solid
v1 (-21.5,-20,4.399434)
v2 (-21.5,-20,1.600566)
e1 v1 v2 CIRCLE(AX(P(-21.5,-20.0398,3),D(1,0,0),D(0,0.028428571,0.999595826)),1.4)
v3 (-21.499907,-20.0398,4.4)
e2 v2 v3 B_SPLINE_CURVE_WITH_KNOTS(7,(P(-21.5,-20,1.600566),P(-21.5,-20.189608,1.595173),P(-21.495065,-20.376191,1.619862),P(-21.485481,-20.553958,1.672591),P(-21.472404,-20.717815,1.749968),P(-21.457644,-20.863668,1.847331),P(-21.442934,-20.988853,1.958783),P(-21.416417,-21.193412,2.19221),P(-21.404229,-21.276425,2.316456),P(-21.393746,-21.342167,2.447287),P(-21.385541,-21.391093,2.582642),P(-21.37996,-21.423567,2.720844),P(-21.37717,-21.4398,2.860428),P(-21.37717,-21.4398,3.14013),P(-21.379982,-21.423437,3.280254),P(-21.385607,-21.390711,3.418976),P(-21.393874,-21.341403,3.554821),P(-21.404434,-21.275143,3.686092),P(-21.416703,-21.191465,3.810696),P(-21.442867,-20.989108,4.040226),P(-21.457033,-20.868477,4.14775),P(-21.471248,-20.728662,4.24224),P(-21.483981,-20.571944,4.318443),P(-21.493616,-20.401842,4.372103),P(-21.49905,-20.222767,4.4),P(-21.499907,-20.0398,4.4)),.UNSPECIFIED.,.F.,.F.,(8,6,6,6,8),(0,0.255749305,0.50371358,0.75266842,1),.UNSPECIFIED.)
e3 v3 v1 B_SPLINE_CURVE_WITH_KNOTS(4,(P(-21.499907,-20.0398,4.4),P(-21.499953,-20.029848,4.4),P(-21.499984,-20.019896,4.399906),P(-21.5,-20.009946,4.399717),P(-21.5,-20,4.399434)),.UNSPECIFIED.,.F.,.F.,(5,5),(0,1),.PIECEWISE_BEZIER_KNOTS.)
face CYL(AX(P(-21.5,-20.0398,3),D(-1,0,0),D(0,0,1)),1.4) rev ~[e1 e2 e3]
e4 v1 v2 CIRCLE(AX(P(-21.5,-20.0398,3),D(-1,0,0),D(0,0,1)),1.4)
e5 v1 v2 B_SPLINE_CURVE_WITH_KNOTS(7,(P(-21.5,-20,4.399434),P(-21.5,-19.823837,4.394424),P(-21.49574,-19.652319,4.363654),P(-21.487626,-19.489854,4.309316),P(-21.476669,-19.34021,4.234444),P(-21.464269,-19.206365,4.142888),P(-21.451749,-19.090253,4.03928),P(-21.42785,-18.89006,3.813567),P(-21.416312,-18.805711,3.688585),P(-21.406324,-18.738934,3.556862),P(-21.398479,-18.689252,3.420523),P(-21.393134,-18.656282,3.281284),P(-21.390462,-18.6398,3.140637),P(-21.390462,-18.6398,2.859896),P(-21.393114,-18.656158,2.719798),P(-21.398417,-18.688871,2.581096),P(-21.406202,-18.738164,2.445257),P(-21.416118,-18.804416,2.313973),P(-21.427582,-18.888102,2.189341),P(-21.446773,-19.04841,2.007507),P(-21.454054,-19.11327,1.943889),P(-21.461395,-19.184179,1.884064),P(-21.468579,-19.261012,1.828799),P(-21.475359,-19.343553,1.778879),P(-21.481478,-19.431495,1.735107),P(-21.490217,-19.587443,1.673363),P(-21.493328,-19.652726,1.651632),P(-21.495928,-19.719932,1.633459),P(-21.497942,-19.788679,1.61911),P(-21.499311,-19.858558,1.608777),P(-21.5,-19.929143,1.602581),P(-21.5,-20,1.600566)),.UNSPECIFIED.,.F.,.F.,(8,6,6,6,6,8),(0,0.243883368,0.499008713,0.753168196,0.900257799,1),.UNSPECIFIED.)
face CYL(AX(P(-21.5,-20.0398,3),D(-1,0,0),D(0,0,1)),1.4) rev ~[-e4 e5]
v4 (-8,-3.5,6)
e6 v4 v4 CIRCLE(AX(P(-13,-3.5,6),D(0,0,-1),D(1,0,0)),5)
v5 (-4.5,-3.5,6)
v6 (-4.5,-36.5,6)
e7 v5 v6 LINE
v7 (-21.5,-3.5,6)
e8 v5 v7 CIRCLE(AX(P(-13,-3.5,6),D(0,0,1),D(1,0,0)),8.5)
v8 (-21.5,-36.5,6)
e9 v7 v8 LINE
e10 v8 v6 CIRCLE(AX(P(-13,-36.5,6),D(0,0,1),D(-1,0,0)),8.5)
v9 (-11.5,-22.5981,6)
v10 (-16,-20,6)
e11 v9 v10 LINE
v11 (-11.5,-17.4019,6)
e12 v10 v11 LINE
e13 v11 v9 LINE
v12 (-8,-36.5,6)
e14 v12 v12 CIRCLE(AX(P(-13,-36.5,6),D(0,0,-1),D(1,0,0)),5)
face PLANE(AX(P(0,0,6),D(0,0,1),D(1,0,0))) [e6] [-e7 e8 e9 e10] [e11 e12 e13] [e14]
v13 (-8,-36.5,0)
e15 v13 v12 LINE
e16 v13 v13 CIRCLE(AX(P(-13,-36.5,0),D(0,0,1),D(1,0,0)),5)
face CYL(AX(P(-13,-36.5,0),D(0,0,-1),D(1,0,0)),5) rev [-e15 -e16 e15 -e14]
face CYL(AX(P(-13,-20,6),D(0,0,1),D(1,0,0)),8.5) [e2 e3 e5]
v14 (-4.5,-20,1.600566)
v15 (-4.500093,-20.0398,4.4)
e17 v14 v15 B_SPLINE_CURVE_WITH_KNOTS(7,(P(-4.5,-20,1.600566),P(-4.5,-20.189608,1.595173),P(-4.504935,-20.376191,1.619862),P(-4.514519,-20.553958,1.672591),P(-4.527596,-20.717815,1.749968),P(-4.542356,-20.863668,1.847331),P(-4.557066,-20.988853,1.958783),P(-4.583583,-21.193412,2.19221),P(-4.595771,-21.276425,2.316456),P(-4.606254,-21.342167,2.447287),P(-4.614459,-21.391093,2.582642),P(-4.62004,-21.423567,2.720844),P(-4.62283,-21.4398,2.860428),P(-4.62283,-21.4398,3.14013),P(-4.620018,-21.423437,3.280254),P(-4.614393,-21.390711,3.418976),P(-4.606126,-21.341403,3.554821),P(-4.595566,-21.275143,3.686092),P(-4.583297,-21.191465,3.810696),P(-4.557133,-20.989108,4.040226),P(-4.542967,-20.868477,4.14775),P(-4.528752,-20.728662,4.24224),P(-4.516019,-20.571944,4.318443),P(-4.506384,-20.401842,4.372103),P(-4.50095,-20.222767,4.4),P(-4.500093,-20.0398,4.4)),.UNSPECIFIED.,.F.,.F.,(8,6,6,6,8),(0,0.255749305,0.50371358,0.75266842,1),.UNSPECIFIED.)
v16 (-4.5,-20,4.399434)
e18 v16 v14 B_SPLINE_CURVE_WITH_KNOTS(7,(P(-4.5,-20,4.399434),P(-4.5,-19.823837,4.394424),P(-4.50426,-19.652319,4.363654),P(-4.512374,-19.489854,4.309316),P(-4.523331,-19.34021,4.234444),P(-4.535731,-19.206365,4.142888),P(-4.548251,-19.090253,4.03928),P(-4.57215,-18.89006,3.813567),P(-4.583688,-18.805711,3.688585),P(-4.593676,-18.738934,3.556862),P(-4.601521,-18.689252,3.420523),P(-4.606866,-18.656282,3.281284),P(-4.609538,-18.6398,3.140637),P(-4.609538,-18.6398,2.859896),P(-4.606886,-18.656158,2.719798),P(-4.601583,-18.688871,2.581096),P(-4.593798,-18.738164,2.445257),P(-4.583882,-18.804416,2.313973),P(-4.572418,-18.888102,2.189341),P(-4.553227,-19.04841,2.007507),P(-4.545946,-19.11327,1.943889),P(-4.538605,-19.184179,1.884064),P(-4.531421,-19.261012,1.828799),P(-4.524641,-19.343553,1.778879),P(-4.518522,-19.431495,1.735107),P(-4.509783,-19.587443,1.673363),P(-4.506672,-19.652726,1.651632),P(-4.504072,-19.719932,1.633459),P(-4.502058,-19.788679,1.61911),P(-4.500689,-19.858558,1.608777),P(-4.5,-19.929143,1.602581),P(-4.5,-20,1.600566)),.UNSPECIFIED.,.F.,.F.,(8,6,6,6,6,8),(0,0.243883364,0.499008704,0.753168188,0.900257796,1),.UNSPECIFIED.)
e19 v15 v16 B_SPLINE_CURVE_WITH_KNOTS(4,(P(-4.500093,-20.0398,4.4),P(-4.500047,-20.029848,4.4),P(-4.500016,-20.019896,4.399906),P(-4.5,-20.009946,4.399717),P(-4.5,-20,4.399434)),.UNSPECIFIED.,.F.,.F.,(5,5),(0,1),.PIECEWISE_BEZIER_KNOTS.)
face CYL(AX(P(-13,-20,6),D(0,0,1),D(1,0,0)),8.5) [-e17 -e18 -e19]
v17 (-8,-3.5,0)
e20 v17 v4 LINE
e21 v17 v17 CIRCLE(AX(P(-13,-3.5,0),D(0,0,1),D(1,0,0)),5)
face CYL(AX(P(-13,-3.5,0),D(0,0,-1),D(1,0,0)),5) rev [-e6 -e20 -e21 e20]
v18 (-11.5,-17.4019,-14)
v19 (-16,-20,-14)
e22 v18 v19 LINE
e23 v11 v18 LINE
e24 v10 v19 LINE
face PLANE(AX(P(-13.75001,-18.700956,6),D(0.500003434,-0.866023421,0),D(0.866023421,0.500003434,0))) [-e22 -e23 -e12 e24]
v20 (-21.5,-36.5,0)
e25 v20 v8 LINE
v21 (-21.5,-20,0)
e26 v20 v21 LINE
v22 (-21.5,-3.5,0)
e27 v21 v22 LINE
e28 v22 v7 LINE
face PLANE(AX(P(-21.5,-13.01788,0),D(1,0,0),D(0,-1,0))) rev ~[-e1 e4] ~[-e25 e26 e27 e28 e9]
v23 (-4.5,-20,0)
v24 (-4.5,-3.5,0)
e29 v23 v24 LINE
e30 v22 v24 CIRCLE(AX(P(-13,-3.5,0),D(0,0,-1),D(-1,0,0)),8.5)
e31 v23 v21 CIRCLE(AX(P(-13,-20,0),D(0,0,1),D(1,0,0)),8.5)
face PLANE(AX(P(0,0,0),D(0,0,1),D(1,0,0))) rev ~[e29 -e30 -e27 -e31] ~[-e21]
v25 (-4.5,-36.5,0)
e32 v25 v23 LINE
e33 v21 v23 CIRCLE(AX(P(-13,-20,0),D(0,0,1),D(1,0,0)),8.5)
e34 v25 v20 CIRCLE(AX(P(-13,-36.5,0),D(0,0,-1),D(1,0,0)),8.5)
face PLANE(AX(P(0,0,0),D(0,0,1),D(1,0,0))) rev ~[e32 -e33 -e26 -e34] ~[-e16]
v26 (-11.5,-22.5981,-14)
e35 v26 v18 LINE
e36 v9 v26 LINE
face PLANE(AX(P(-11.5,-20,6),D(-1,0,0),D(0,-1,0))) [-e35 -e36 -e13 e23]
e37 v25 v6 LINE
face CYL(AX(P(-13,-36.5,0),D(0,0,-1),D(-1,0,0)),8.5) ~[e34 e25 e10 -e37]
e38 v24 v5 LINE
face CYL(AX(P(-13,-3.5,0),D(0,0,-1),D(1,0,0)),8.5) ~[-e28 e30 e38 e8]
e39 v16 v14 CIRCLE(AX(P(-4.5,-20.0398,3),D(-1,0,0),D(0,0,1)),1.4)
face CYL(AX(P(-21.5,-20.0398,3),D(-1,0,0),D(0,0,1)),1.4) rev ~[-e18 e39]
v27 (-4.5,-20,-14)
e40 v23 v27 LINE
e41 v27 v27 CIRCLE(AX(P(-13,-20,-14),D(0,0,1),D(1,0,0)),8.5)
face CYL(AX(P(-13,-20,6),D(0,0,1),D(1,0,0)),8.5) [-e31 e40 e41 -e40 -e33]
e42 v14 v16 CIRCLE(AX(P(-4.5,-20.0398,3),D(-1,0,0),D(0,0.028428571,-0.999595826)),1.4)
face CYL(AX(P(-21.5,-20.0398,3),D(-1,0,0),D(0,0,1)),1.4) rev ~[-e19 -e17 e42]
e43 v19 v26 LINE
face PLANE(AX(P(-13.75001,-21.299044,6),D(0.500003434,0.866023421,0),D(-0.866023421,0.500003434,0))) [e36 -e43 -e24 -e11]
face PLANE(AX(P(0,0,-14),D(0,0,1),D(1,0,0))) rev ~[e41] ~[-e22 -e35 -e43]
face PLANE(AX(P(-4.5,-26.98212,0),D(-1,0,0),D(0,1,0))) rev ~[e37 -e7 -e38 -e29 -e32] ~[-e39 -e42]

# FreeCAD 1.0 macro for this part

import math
import FreeCAD as App
import Part
import Sketcher

V = App.Vector
Q = App.Units.Quantity


def add_polygon(sketch, points):
    """Adds a closed chain of lines whose ends are joined by coincident constraints."""
    first, n = sketch.GeometryCount, len(points)
    for a, b in zip(points, points[1:] + points[:1]):
        sketch.addGeometry(Part.LineSegment(App.Vector(*a, 0), App.Vector(*b, 0)), False)
    for i in range(n):
        sketch.addConstraint(Sketcher.Constraint("Coincident", first + i, 2, first + (i + 1) % n, 1))

doc = App.newDocument("Part")
body = doc.addObject("PartDesign::Body", "Body")

sketch1 = doc.addObject("Sketcher::SketchObject", "Sketch")
body.addObject(sketch1)
sketch1.AttachmentSupport = (doc.XY_Plane, [""])
sketch1.MapMode = "FlatFace"
sketch1.addGeometry(Part.ArcOfCircle(Part.Circle(V(-13, -3.5, 0), V(0, 0, 1), 8.5), math.radians(0), math.radians(180)), False)
sketch1.addGeometry(Part.LineSegment(V(-21.5, -3.5, 0), V(-21.5, -36.5, 0)), False)
sketch1.addGeometry(Part.ArcOfCircle(Part.Circle(V(-13, -36.5, 0), V(0, 0, 1), 8.5), math.radians(180), math.radians(360)), False)
sketch1.addGeometry(Part.LineSegment(V(-4.5, -36.5, 0), V(-4.5, -3.5, 0)), False)
sketch1.addGeometry(Part.Circle(V(-13, -20, 0), V(0, 0, 1), 4.5), False)
sketch1.addGeometry(Part.Circle(V(-13, -36.5, 0), V(0, 0, 1), 5), False)
sketch1.addGeometry(Part.Circle(V(-13, -3.5, 0), V(0, 0, 1), 5), False)
sketch1.addConstraint(Sketcher.Constraint("Tangent", 0, 2, 1, 1))
sketch1.addConstraint(Sketcher.Constraint("Tangent", 1, 2, 2, 1))
sketch1.addConstraint(Sketcher.Constraint("Tangent", 2, 2, 3, 1))
sketch1.addConstraint(Sketcher.Constraint("Tangent", 3, 2, 0, 1))
sketch1.addConstraint(Sketcher.Constraint("Vertical", 1))
sketch1.addConstraint(Sketcher.Constraint("Vertical", 3))
sketch1.addConstraint(Sketcher.Constraint("Coincident", 5, 3, 2, 3))
sketch1.addConstraint(Sketcher.Constraint("Coincident", 6, 3, 0, 3))
sketch1.addConstraint(Sketcher.Constraint("Equal", 5, 6))
sketch1.addConstraint(Sketcher.Constraint("Vertical", 2, 3, 4, 3))
sketch1.addConstraint(Sketcher.Constraint("Diameter", 4, Q("9 mm")))
sketch1.addConstraint(Sketcher.Constraint("Diameter", 5, Q("10 mm")))
sketch1.addConstraint(Sketcher.Constraint("Radius", 0, Q("8.5 mm")))
sketch1.addConstraint(Sketcher.Constraint("DistanceY", 1, 2, 1, 1, Q("33 mm")))
sketch1.addConstraint(Sketcher.Constraint("DistanceX", 0, 3, -1, 1, Q("13 mm")))
sketch1.addConstraint(Sketcher.Constraint("DistanceY", 4, 3, -1, 1, Q("20 mm")))
sketch1.addConstraint(Sketcher.Constraint("DistanceY", 0, 3, -1, 1, Q("3.5 mm")))
pad1 = doc.addObject("PartDesign::Pad", "Pad")
body.addObject(pad1)
pad1.Profile = sketch1
pad1.Length = 6

sketch2 = doc.addObject("Sketcher::SketchObject", "Sketch001")
body.addObject(sketch2)
sketch2.AttachmentSupport = (doc.YZ_Plane, [""])
sketch2.MapMode = "FlatFace"
sketch2.AttachmentOffset = App.Placement(V(0, 0, -21.5), App.Rotation())
sketch2.addGeometry(Part.Circle(V(-20, 3, 0), V(0, 0, 1), 1.4), False)
sketch2.addConstraint(Sketcher.Constraint("Diameter", 0, Q("2.8 mm")))
sketch2.addConstraint(Sketcher.Constraint("DistanceY", -1, 1, 0, 3, Q("3 mm")))
sketch2.addConstraint(Sketcher.Constraint("DistanceX", 0, 3, -1, 1, Q("20.0398 mm")))
pocket1 = doc.addObject("PartDesign::Pocket", "Pocket")
body.addObject(pocket1)
pocket1.Profile = sketch2
pocket1.Type = "ThroughAll"
pocket1.Reversed = True

sketch3 = doc.addObject("Sketcher::SketchObject", "Sketch002")
body.addObject(sketch3)
sketch3.AttachmentSupport = (doc.XY_Plane, [""])
sketch3.MapMode = "FlatFace"
sketch3.AttachmentOffset = App.Placement(V(0, 0, 6), App.Rotation())
sketch3.addGeometry(Part.Circle(V(-13, -20, 0), V(0, 0, 1), 8), False)
add_polygon(sketch3, [(-16, -20), (-12, -17), (-12, -23)])
sketch3.addConstraint(Sketcher.Constraint("Vertical", 2))
sketch3.addConstraint(Sketcher.Constraint("Horizontal", 0, 3, 3, 2))
sketch3.addConstraint(Sketcher.Constraint("Equal", 1, 3))
sketch3.addConstraint(Sketcher.Constraint("Diameter", 0, Q("17 mm")))
sketch3.addConstraint(Sketcher.Constraint("DistanceX", 3, 2, 0, 3, Q("3 mm")))
sketch3.addConstraint(Sketcher.Constraint("Angle", 1, Q("30.0002 deg")))
sketch3.addConstraint(Sketcher.Constraint("DistanceX", 0, 3, -1, 1, Q("13 mm")))
sketch3.addConstraint(Sketcher.Constraint("DistanceY", 0, 3, -1, 1, Q("20 mm")))
sketch3.addConstraint(Sketcher.Constraint("DistanceX", 1, 2, -1, 1, Q("11.5 mm")))
pad2 = doc.addObject("PartDesign::Pad", "Pad001")
body.addObject(pad2)
pad2.Profile = sketch3
pad2.Length = 20
pad2.Reversed = True

doc.recompute()
